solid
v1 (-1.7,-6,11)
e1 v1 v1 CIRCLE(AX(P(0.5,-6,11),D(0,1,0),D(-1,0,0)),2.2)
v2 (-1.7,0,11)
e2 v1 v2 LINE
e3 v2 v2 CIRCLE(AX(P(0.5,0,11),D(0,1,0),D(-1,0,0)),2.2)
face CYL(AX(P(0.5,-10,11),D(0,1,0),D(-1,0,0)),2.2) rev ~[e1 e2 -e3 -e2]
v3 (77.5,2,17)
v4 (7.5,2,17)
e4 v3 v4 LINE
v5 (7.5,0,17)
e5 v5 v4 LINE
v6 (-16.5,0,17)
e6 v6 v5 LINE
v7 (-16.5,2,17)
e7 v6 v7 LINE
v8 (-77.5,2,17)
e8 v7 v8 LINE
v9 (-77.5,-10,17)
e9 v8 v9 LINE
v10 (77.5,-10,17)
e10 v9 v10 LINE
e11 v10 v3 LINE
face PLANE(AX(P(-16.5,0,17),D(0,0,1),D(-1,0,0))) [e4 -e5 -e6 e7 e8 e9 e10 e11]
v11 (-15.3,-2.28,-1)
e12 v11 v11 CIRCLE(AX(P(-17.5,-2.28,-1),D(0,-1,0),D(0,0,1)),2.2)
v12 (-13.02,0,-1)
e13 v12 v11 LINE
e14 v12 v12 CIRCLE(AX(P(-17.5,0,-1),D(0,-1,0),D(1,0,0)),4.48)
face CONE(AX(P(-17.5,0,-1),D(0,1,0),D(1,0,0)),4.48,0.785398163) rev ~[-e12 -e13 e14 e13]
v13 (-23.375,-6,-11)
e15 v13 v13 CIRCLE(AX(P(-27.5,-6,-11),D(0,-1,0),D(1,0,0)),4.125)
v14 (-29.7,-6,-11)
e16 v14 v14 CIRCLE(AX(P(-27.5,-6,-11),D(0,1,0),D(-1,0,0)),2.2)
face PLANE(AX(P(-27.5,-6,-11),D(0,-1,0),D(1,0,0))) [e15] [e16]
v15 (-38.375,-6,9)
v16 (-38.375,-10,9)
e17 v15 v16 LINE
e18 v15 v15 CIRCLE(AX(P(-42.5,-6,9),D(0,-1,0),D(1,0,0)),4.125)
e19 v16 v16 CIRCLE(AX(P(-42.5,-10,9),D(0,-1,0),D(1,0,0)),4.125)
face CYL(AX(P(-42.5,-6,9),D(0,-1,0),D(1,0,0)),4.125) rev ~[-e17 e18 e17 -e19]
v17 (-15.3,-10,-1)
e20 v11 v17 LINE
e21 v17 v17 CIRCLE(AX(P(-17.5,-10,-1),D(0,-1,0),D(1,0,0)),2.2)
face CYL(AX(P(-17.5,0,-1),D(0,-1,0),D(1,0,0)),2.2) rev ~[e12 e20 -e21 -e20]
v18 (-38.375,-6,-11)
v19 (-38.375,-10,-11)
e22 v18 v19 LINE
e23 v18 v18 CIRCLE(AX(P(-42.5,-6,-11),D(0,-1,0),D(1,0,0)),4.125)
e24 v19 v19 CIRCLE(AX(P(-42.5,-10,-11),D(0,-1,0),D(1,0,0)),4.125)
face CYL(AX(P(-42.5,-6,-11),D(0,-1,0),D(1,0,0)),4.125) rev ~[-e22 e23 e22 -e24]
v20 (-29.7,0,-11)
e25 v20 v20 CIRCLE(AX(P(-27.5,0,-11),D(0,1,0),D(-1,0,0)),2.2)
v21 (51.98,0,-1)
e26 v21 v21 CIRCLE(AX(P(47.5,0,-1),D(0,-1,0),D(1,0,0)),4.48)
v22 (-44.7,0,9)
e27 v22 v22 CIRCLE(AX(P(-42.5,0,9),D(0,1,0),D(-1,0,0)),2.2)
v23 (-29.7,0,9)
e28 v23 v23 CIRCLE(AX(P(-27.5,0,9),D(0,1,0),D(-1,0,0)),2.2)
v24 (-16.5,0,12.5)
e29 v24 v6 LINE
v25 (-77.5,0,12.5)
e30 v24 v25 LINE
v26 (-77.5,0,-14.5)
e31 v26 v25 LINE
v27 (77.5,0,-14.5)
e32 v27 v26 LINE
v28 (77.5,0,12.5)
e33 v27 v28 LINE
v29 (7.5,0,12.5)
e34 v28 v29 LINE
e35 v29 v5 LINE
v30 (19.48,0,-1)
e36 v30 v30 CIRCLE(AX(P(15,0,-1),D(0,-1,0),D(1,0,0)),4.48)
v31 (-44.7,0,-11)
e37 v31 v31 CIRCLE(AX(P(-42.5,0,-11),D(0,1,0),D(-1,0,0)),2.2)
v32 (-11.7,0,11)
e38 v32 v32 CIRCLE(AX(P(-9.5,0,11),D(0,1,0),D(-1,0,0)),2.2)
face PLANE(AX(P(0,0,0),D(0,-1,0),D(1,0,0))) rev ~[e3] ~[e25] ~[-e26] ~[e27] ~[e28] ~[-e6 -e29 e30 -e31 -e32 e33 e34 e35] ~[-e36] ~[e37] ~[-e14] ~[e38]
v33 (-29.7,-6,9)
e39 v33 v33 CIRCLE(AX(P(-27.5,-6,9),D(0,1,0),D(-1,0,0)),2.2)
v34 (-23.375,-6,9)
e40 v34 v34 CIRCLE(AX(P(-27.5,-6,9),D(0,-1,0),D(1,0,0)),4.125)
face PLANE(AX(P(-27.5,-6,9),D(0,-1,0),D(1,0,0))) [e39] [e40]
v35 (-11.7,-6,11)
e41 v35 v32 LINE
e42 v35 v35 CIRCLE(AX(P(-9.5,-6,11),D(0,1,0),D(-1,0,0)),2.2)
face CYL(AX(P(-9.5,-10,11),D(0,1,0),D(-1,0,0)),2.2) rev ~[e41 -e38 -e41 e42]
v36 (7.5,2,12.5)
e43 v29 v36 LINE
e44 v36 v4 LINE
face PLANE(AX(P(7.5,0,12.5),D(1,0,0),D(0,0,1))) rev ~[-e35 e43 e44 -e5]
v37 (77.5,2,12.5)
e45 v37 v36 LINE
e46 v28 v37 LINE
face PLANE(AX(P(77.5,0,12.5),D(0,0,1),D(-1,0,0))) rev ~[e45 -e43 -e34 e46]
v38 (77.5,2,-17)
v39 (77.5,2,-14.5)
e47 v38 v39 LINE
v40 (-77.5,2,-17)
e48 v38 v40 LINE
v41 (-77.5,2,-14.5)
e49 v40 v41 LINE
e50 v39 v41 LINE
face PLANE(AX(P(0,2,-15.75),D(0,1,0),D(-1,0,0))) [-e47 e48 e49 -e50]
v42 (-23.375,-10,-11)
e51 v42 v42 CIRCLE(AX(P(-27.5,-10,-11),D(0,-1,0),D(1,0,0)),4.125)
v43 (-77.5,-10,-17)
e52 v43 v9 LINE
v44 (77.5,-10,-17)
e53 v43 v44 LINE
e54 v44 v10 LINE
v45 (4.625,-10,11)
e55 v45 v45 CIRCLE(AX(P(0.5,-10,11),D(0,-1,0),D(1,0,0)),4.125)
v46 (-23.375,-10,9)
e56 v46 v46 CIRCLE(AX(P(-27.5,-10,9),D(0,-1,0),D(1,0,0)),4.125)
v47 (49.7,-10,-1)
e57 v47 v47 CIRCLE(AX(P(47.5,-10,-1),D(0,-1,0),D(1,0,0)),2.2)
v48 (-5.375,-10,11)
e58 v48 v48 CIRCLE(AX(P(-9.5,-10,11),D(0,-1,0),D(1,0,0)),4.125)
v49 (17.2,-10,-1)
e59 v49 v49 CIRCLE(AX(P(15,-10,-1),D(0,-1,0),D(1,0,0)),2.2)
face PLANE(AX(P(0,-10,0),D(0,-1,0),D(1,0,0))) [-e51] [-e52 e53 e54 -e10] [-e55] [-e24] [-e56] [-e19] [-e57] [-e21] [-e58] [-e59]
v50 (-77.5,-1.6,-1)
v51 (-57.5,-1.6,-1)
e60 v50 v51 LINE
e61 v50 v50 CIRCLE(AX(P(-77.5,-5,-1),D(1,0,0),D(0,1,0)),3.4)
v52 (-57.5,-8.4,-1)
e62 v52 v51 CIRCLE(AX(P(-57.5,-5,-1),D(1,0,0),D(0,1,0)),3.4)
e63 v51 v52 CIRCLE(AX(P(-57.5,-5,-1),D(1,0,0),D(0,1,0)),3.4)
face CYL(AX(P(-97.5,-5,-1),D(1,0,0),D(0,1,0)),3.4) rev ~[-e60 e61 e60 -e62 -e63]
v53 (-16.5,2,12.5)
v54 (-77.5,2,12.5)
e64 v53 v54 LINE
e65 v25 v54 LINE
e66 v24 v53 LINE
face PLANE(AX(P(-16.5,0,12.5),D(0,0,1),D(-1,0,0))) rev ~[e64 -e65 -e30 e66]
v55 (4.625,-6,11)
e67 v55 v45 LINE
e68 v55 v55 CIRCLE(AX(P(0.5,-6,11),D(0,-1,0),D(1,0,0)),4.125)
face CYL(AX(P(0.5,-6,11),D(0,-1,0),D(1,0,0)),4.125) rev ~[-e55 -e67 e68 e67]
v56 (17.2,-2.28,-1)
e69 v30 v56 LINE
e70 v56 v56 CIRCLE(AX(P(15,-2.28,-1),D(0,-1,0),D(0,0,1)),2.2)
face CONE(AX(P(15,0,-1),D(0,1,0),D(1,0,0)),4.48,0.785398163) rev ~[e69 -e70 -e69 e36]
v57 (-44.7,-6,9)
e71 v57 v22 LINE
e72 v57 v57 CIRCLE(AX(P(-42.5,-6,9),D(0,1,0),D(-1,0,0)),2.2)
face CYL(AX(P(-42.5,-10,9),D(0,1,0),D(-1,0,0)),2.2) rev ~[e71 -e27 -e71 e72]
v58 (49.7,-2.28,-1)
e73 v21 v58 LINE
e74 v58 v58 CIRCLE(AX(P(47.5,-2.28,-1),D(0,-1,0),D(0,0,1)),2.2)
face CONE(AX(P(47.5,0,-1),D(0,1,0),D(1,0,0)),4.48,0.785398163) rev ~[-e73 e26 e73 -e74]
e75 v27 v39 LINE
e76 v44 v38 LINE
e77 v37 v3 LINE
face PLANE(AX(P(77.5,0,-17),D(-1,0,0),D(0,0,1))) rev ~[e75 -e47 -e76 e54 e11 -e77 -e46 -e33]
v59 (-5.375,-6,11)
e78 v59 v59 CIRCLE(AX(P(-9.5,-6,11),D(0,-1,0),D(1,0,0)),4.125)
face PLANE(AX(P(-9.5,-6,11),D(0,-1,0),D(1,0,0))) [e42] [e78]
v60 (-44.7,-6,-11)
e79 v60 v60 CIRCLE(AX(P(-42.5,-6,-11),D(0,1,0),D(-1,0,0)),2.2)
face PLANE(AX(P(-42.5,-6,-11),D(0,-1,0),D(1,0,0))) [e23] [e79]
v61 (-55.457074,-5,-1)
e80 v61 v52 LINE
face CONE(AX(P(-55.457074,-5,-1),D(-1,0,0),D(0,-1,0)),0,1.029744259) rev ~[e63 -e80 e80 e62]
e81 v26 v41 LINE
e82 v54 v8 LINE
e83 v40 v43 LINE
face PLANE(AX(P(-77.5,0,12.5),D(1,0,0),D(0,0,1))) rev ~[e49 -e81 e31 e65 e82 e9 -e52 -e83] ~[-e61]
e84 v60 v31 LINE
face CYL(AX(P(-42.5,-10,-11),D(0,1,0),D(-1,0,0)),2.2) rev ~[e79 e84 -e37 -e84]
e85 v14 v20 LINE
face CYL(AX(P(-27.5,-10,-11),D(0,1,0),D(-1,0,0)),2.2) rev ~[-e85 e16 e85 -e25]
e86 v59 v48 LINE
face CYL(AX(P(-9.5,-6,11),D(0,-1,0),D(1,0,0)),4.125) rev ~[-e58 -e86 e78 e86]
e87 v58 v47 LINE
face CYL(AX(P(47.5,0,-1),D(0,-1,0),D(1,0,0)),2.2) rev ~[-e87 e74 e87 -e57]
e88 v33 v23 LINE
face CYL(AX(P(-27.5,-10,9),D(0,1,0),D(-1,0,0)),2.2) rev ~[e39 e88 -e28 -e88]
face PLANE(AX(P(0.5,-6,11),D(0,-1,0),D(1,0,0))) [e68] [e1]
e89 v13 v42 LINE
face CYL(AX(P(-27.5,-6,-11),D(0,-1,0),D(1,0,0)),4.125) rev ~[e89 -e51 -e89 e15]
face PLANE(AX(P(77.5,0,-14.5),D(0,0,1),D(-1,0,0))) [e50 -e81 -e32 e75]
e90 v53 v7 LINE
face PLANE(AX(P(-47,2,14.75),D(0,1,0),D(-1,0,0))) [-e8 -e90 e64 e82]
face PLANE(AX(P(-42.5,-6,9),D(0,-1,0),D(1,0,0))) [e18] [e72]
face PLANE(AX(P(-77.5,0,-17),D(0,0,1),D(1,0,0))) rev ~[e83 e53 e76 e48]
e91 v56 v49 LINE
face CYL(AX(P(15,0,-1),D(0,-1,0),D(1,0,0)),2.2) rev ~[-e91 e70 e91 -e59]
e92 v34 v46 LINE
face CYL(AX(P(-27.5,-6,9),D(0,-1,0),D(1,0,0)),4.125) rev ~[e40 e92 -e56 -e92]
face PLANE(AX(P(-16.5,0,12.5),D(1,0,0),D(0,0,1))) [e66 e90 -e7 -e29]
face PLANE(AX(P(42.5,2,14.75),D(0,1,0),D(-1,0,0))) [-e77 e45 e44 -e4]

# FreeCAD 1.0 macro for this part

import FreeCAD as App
import Part
import Sketcher
from FreeCAD import Vector

doc = App.newDocument("Part")
body = doc.addObject("PartDesign::Body", "Body")

sketch1 = body.newObject("Sketcher::SketchObject", "Sketch")
sketch1.AttachmentSupport = (doc.getObject("XZ_Plane"), [""])
sketch1.MapMode = "FlatFace"
sketch1.addGeometry(Part.LineSegment(Vector(-78, 17, 0), Vector(-78, -17, 0)), False)
sketch1.addGeometry(Part.LineSegment(Vector(-78, -17, 0), Vector(78, -17, 0)), False)
sketch1.addGeometry(Part.LineSegment(Vector(78, -17, 0), Vector(78, 17, 0)), False)
sketch1.addGeometry(Part.LineSegment(Vector(78, 17, 0), Vector(-78, 17, 0)), False)
sketch1.addConstraint(Sketcher.Constraint("Coincident", 0, 2, 1, 1))
sketch1.addConstraint(Sketcher.Constraint("Coincident", 1, 2, 2, 1))
sketch1.addConstraint(Sketcher.Constraint("Coincident", 2, 2, 3, 1))
sketch1.addConstraint(Sketcher.Constraint("Coincident", 3, 2, 0, 1))
sketch1.addConstraint(Sketcher.Constraint("Vertical", 0))
sketch1.addConstraint(Sketcher.Constraint("Horizontal", 1))
sketch1.addConstraint(Sketcher.Constraint("Vertical", 2))
sketch1.addConstraint(Sketcher.Constraint("Horizontal", 3))
sketch1.addConstraint(Sketcher.Constraint("Symmetric", 0, 2, 2, 2, -1, 1))
sketch1.addConstraint(Sketcher.Constraint("DistanceX", 1, 1, 1, 2, 155.0))
sketch1.addConstraint(Sketcher.Constraint("DistanceY", 0, 2, 0, 1, 34.0))
pad1 = body.newObject("PartDesign::Pad", "Pad")
pad1.Profile = sketch1
pad1.Length = 10

sketch2 = body.newObject("Sketcher::SketchObject", "Sketch001")
sketch2.AttachmentSupport = (doc.getObject("XZ_Plane"), [""])
sketch2.MapMode = "FlatFace"
sketch2.addGeometry(Part.LineSegment(Vector(-16.5, 17, 0), Vector(-16.5, 12.5, 0)), False)
sketch2.addGeometry(Part.LineSegment(Vector(-16.5, 12.5, 0), Vector(-77.5, 12.5, 0)), False)
sketch2.addGeometry(Part.LineSegment(Vector(-77.5, 12.5, 0), Vector(-77.5, 17, 0)), False)
sketch2.addGeometry(Part.LineSegment(Vector(-77.5, 17, 0), Vector(-16.5, 17, 0)), False)
sketch2.addGeometry(Part.LineSegment(Vector(77.5, 17, 0), Vector(77.5, 12.5, 0)), False)
sketch2.addGeometry(Part.LineSegment(Vector(77.5, 12.5, 0), Vector(7.5, 12.5, 0)), False)
sketch2.addGeometry(Part.LineSegment(Vector(7.5, 12.5, 0), Vector(7.5, 17, 0)), False)
sketch2.addGeometry(Part.LineSegment(Vector(7.5, 17, 0), Vector(77.5, 17, 0)), False)
sketch2.addGeometry(Part.LineSegment(Vector(77.5, -14.5, 0), Vector(77.5, -17, 0)), False)
sketch2.addGeometry(Part.LineSegment(Vector(77.5, -17, 0), Vector(-77.5, -17, 0)), False)
sketch2.addGeometry(Part.LineSegment(Vector(-77.5, -17, 0), Vector(-77.5, -14.5, 0)), False)
sketch2.addGeometry(Part.LineSegment(Vector(-77.5, -14.5, 0), Vector(77.5, -14.5, 0)), False)
sketch2.addConstraint(Sketcher.Constraint("Coincident", 0, 2, 1, 1))
sketch2.addConstraint(Sketcher.Constraint("Coincident", 1, 2, 2, 1))
sketch2.addConstraint(Sketcher.Constraint("Coincident", 2, 2, 3, 1))
sketch2.addConstraint(Sketcher.Constraint("Coincident", 3, 2, 0, 1))
sketch2.addConstraint(Sketcher.Constraint("Coincident", 4, 2, 5, 1))
sketch2.addConstraint(Sketcher.Constraint("Coincident", 5, 2, 6, 1))
sketch2.addConstraint(Sketcher.Constraint("Coincident", 6, 2, 7, 1))
sketch2.addConstraint(Sketcher.Constraint("Coincident", 7, 2, 4, 1))
sketch2.addConstraint(Sketcher.Constraint("Coincident", 8, 2, 9, 1))
sketch2.addConstraint(Sketcher.Constraint("Coincident", 9, 2, 10, 1))
sketch2.addConstraint(Sketcher.Constraint("Coincident", 10, 2, 11, 1))
sketch2.addConstraint(Sketcher.Constraint("Coincident", 11, 2, 8, 1))
sketch2.addConstraint(Sketcher.Constraint("Vertical", 0))
sketch2.addConstraint(Sketcher.Constraint("Horizontal", 1))
sketch2.addConstraint(Sketcher.Constraint("Vertical", 2))
sketch2.addConstraint(Sketcher.Constraint("Horizontal", 3))
sketch2.addConstraint(Sketcher.Constraint("Vertical", 4))
sketch2.addConstraint(Sketcher.Constraint("Horizontal", 5))
sketch2.addConstraint(Sketcher.Constraint("Vertical", 6))
sketch2.addConstraint(Sketcher.Constraint("Horizontal", 7))
sketch2.addConstraint(Sketcher.Constraint("Vertical", 8))
sketch2.addConstraint(Sketcher.Constraint("Horizontal", 9))
sketch2.addConstraint(Sketcher.Constraint("Vertical", 10))
sketch2.addConstraint(Sketcher.Constraint("Horizontal", 11))
sketch2.addConstraint(Sketcher.Constraint("Symmetric", 2, 2, 8, 2, -1, 1))
sketch2.addConstraint(Sketcher.Constraint("Symmetric", 7, 2, 9, 2, -1, 1))
sketch2.addConstraint(Sketcher.Constraint("Symmetric", 1, 2, 4, 2, -2))
sketch2.addConstraint(Sketcher.Constraint("DistanceX", 1, 2, 1, 1, 61.0))
sketch2.addConstraint(Sketcher.Constraint("DistanceX", 5, 2, 5, 1, 70.0))
sketch2.addConstraint(Sketcher.Constraint("DistanceX", 9, 2, 9, 1, 155.0))
sketch2.addConstraint(Sketcher.Constraint("DistanceY", 0, 2, 0, 1, 4.5))
sketch2.addConstraint(Sketcher.Constraint("DistanceY", 8, 2, 8, 1, 2.5))
sketch2.addConstraint(Sketcher.Constraint("DistanceY", -1, 1, 2, 2, 17.0))
pad2 = body.newObject("PartDesign::Pad", "Pad001")
pad2.Profile = sketch2
pad2.Length = 2
pad2.Reversed = True

sketch3 = body.newObject("Sketcher::SketchObject", "Sketch002")
sketch3.AttachmentSupport = (doc.getObject("XZ_Plane"), [""])
sketch3.MapMode = "FlatFace"
sketch3.AttachmentOffset = App.Placement(Vector(0, 0, 10), App.Rotation())
sketch3.addGeometry(Part.Circle(Vector(-42.5, 9, 0), Vector(0, 0, 1), 2.2), False)
sketch3.addGeometry(Part.Circle(Vector(-27.5, 9, 0), Vector(0, 0, 1), 2.2), False)
sketch3.addGeometry(Part.Circle(Vector(-9.5, 11, 0), Vector(0, 0, 1), 2.2), False)
sketch3.addGeometry(Part.Circle(Vector(0.5, 11, 0), Vector(0, 0, 1), 2.2), False)
sketch3.addGeometry(Part.Circle(Vector(-27.5, -11, 0), Vector(0, 0, 1), 2.2), False)
sketch3.addGeometry(Part.Circle(Vector(-42.5, -11, 0), Vector(0, 0, 1), 2.2), False)
sketch3.addConstraint(Sketcher.Constraint("Equal", 0, 1))
sketch3.addConstraint(Sketcher.Constraint("Equal", 1, 2))
sketch3.addConstraint(Sketcher.Constraint("Equal", 2, 3))
sketch3.addConstraint(Sketcher.Constraint("Equal", 3, 4))
sketch3.addConstraint(Sketcher.Constraint("Equal", 4, 5))
sketch3.addConstraint(Sketcher.Constraint("Horizontal", 0, 3, 1, 3))
sketch3.addConstraint(Sketcher.Constraint("Horizontal", 2, 3, 3, 3))
sketch3.addConstraint(Sketcher.Constraint("Horizontal", 4, 3, 5, 3))
sketch3.addConstraint(Sketcher.Constraint("Vertical", 1, 3, 4, 3))
sketch3.addConstraint(Sketcher.Constraint("Vertical", 0, 3, 5, 3))
sketch3.addConstraint(Sketcher.Constraint("Diameter", 0, 4.4))
sketch3.addConstraint(Sketcher.Constraint("DistanceY", -1, 1, 0, 3, 9.0))
sketch3.addConstraint(Sketcher.Constraint("DistanceY", -1, 1, 2, 3, 11.0))
sketch3.addConstraint(Sketcher.Constraint("DistanceY", 4, 3, -1, 1, 11.0))
sketch3.addConstraint(Sketcher.Constraint("DistanceX", 0, 3, 1, 3, 15.0))
sketch3.addConstraint(Sketcher.Constraint("DistanceX", 1, 3, 2, 3, 18.0))
sketch3.addConstraint(Sketcher.Constraint("DistanceX", 2, 3, 3, 3, 10.0))
sketch3.addConstraint(Sketcher.Constraint("DistanceX", 0, 3, -1, 1, 42.5))
doc.recompute()
hole = body.newObject("PartDesign::Hole", "Hole")
hole.Profile = sketch3
hole.ThreadType = "None"
hole.Diameter = 4.4
hole.DepthType = "ThroughAll"
hole.HoleCutType = "Counterbore"
hole.HoleCutDiameter = 8.25
hole.HoleCutDepth = 4

sketch4 = body.newObject("Sketcher::SketchObject", "Sketch003")
sketch4.AttachmentSupport = (doc.getObject("XZ_Plane"), [""])
sketch4.MapMode = "FlatFace"
sketch4.addGeometry(Part.Circle(Vector(47.5, -1, 0), Vector(0, 0, 1), 2.2), False)
sketch4.addGeometry(Part.Circle(Vector(15, -1, 0), Vector(0, 0, 1), 2.2), False)
sketch4.addGeometry(Part.Circle(Vector(-17.5, -1, 0), Vector(0, 0, 1), 2.2), False)
sketch4.addConstraint(Sketcher.Constraint("Equal", 0, 1))
sketch4.addConstraint(Sketcher.Constraint("Equal", 1, 2))
sketch4.addConstraint(Sketcher.Constraint("Horizontal", 0, 3, 1, 3))
sketch4.addConstraint(Sketcher.Constraint("Horizontal", 1, 3, 2, 3))
sketch4.addConstraint(Sketcher.Constraint("Diameter", 0, 4.4))
sketch4.addConstraint(Sketcher.Constraint("DistanceY", 0, 3, -1, 1, 1.0))
sketch4.addConstraint(Sketcher.Constraint("DistanceX", -1, 1, 1, 3, 15.0))
sketch4.addConstraint(Sketcher.Constraint("DistanceX", 2, 3, 0, 3, 65.0))
sketch4.addConstraint(Sketcher.Constraint("DistanceX", -1, 1, 0, 3, 47.5))
doc.recompute()
hole2 = body.newObject("PartDesign::Hole", "Hole001")
hole2.Profile = sketch4
hole2.ThreadType = "None"
hole2.Diameter = 4.4
hole2.DepthType = "ThroughAll"
hole2.HoleCutType = "Countersink"
hole2.HoleCutDiameter = 8.96
hole2.HoleCutCountersinkAngle = 90
hole2.Reversed = True

sketch5 = body.newObject("Sketcher::SketchObject", "Sketch004")
sketch5.AttachmentSupport = (doc.getObject("YZ_Plane"), [""])
sketch5.MapMode = "FlatFace"
sketch5.AttachmentOffset = App.Placement(Vector(0, 0, -77.5), App.Rotation())
sketch5.addGeometry(Part.Circle(Vector(-5, -1, 0), Vector(0, 0, 1), 3.4), False)
sketch5.addConstraint(Sketcher.Constraint("Diameter", 0, 6.8))
sketch5.addConstraint(Sketcher.Constraint("DistanceX", 0, 3, -1, 1, 5.0))
sketch5.addConstraint(Sketcher.Constraint("DistanceY", 0, 3, -1, 1, 1.0))
doc.recompute()
hole3 = body.newObject("PartDesign::Hole", "Hole002")
hole3.Profile = sketch5
hole3.ThreadType = "None"
hole3.Diameter = 6.8
hole3.DepthType = "Dimension"
hole3.Depth = 20
hole3.DrillPoint = "Angled"
hole3.DrillPointAngle = 118
hole3.Reversed = True

doc.recompute()
